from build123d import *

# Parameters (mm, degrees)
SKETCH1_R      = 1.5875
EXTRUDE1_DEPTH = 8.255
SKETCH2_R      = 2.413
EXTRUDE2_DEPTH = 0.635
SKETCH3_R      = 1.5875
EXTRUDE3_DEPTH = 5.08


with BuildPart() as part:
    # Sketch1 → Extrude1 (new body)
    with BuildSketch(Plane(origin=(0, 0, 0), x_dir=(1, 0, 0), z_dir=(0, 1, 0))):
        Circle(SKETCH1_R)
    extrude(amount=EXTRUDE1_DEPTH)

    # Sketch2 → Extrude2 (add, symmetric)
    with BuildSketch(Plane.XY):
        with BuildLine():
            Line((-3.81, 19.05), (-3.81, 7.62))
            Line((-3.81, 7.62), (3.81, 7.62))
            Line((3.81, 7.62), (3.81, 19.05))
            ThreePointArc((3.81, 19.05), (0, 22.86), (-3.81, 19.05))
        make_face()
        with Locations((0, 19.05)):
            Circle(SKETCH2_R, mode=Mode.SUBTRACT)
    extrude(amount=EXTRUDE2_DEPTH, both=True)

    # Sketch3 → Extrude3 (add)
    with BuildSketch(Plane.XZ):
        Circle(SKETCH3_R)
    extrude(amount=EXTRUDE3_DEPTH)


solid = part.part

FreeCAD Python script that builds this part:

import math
import FreeCAD as App
import Part
import Sketcher

V = App.Vector
Q = App.Units.Quantity

doc = App.newDocument("Part")
body = doc.addObject("PartDesign::Body", "Body")

# Sketch on XZ plane
sketch1 = doc.addObject("Sketcher::SketchObject", "Sketch")
body.addObject(sketch1)
sketch1.AttachmentSupport = (doc.XZ_Plane, [""])
sketch1.MapMode = "FlatFace"
sketch1.addGeometry(Part.Circle(V(0, 0, 0), V(0, 0, 1), 1.5875), False)
sketch1.addConstraint([
    Sketcher.Constraint("Coincident", 0, 3, -1, 1),
    Sketcher.Constraint("Diameter", 0, Q("0.125 in")),
])
pad1 = doc.addObject("PartDesign::Pad", "Pad")
body.addObject(pad1)
pad1.Profile = sketch1
pad1.Length = Q("0.325 in")
pad1.Reversed = True

# Sketch on XY plane
sketch2 = doc.addObject("Sketcher::SketchObject", "Sketch001")
body.addObject(sketch2)
sketch2.AttachmentSupport = (doc.XY_Plane, [""])
sketch2.MapMode = "FlatFace"
sketch2.addGeometry([
    Part.LineSegment(V(-3.81, 19.05, 0), V(-3.81, 7.62, 0)),  # 0
    Part.LineSegment(V(-3.81, 7.62, 0), V(3.81, 7.62, 0)),  # 1
    Part.LineSegment(V(3.81, 7.62, 0), V(3.81, 19.05, 0)),  # 2
    Part.ArcOfCircle(Part.Circle(V(0, 19.05, 0), V(0, 0, 1), 3.81), math.radians(0), math.radians(180)),  # 3
    Part.Circle(V(0, 19.05, 0), V(0, 0, 1), 2.413),  # 4
], False)
sketch2.addConstraint([
    Sketcher.Constraint("Coincident", 0, 2, 1, 1),
    Sketcher.Constraint("Coincident", 1, 2, 2, 1),
    Sketcher.Constraint("Tangent", 2, 2, 3, 1),
    Sketcher.Constraint("Tangent", 3, 2, 0, 1),
    Sketcher.Constraint("Vertical", 0),
    Sketcher.Constraint("Horizontal", 1),
    Sketcher.Constraint("Vertical", 2),
    Sketcher.Constraint("Coincident", 4, 3, 3, 3),
    Sketcher.Constraint("PointOnObject", 3, 3, -2),
    Sketcher.Constraint("Diameter", 4, Q("0.19 in")),
    Sketcher.Constraint("Radius", 3, Q("0.15 in")),
    Sketcher.Constraint("DistanceY", 0, 2, 0, 1, Q("0.45 in")),
    Sketcher.Constraint("DistanceY", -1, 1, 0, 2, Q("0.3 in")),
])
pad2 = doc.addObject("PartDesign::Pad", "Pad001")
body.addObject(pad2)
pad2.Profile = sketch2
pad2.Length = Q("0.05 in")
pad2.Midplane = True

# Sketch on XZ plane
sketch3 = doc.addObject("Sketcher::SketchObject", "Sketch002")
body.addObject(sketch3)
sketch3.AttachmentSupport = (doc.XZ_Plane, [""])
sketch3.MapMode = "FlatFace"
sketch3.addGeometry(Part.Circle(V(0, 0, 0), V(0, 0, 1), 1.5875), False)
sketch3.addConstraint([
    Sketcher.Constraint("Coincident", 0, 3, -1, 1),
    Sketcher.Constraint("Diameter", 0, Q("0.125 in")),
])
pad3 = doc.addObject("PartDesign::Pad", "Pad002")
body.addObject(pad3)
pad3.Profile = sketch3
pad3.Length = Q("0.2 in")

doc.recompute()
